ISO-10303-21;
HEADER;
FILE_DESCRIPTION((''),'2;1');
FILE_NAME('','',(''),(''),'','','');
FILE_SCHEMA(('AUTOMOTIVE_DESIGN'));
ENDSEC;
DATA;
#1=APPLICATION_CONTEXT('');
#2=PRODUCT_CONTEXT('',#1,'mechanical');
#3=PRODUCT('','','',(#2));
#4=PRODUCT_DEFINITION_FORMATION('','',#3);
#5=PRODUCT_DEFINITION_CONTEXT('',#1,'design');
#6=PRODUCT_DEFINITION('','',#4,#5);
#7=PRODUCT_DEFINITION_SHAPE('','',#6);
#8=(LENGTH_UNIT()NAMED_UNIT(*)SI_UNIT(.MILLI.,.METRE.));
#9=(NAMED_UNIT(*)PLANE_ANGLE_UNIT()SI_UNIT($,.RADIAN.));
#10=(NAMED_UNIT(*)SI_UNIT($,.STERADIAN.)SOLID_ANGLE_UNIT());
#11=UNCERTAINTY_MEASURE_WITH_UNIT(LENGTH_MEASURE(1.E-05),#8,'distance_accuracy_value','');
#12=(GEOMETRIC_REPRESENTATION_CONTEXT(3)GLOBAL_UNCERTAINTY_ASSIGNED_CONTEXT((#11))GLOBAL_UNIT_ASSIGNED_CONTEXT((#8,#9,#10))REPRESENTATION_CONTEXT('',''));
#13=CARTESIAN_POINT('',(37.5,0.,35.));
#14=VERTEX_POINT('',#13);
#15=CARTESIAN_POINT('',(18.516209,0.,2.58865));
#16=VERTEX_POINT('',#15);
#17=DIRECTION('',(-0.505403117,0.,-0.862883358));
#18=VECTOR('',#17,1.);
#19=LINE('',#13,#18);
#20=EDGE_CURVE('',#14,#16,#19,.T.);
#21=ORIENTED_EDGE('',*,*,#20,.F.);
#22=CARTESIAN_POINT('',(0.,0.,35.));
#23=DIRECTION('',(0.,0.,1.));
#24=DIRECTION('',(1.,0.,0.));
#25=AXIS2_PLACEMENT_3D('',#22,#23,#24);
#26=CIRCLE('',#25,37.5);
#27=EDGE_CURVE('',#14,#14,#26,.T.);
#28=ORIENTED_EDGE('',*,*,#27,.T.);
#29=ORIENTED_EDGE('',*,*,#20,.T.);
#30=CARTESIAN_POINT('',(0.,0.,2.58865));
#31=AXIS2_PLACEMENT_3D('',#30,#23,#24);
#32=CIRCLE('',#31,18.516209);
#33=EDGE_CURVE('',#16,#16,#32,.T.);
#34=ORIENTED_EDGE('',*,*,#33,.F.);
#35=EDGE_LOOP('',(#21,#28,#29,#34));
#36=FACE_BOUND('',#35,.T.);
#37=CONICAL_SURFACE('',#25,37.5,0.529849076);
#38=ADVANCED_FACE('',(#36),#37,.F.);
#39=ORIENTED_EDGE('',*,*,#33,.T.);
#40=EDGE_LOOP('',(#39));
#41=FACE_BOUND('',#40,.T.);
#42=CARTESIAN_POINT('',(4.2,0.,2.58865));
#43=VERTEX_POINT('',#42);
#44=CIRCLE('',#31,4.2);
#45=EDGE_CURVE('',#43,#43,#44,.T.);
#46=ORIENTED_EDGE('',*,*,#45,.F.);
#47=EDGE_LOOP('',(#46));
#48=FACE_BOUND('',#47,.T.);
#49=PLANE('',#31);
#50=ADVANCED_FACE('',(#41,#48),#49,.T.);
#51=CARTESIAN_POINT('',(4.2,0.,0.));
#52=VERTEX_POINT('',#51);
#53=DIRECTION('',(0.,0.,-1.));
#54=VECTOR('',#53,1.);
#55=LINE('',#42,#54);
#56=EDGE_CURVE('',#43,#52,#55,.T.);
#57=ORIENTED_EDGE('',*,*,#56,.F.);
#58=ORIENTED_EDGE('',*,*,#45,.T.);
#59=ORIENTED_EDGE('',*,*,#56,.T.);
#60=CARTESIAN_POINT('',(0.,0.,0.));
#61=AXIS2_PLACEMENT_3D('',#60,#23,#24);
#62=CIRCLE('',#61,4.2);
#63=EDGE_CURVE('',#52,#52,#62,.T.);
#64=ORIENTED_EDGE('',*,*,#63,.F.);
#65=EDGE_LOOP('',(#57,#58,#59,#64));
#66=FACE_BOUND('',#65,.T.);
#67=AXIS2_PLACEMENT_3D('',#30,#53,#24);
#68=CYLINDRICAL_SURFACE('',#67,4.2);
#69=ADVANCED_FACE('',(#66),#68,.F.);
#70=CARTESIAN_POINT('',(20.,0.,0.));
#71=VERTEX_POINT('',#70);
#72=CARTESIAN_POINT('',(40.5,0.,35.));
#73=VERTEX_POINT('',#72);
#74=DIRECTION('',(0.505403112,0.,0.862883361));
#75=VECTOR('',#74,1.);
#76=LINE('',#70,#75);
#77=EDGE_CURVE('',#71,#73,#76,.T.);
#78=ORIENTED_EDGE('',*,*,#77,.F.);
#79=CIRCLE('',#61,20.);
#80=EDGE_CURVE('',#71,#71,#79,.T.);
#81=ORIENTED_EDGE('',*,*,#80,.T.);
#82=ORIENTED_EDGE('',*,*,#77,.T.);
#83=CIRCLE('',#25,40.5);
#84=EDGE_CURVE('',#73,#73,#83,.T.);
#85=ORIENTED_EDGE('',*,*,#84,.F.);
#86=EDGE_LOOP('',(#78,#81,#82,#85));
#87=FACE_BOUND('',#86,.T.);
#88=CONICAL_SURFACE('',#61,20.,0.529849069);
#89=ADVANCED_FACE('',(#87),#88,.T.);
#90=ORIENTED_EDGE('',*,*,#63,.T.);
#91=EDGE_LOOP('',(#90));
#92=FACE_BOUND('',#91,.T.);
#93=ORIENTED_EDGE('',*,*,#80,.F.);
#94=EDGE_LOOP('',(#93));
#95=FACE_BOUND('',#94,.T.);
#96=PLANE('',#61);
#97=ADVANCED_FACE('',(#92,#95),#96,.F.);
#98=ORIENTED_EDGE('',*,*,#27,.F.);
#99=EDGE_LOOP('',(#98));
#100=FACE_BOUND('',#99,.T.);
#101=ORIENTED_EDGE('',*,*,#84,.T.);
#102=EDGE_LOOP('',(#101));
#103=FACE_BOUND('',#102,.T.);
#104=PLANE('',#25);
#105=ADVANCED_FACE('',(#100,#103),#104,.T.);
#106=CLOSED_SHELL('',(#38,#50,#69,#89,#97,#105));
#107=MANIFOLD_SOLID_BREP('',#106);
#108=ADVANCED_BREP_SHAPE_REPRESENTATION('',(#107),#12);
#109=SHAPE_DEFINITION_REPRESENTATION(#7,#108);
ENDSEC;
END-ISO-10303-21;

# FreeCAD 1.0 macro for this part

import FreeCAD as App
import Part
import Sketcher


def add_polygon(sketch, points):
    """Adds a closed chain of lines whose ends are joined by coincident constraints."""
    first, n = sketch.GeometryCount, len(points)
    for a, b in zip(points, points[1:] + points[:1]):
        sketch.addGeometry(Part.LineSegment(App.Vector(*a, 0), App.Vector(*b, 0)), False)
    for i in range(n):
        sketch.addConstraint(Sketcher.Constraint("Coincident", first + i, 2, first + (i + 1) % n, 1))

doc = App.newDocument("Part")
params = doc.addObject("Spreadsheet::Sheet", "Params")
for row, (alias, value) in enumerate([
    ("sketch1_width", "3 mm"),
    ("sketch1_width2", "15.8 mm"),
    ("revolution_angle", "360 deg"),
], start=1):
    params.set(f"A{row}", alias)
    params.set(f"B{row}", "=" + value)
    params.setAlias(f"B{row}", alias)

body = doc.addObject("PartDesign::Body", "Body")

sketch1 = body.newObject("Sketcher::SketchObject", "Sketch")
sketch1.AttachmentSupport = (doc.getObject("XZ_Plane"), [""])
sketch1.MapMode = "FlatFace"
add_polygon(sketch1, [(4.2, 2.6), (4.2, 0), (20, 0), (40.5, 35), (37.5, 35), (18.5, 2.6)])
sketch1.addConstraint([
    Sketcher.Constraint("Vertical", 0),
    Sketcher.Constraint("Horizontal", 1),
    Sketcher.Constraint("Horizontal", 3),
    Sketcher.Constraint("Horizontal", 5),
    Sketcher.Constraint("PointOnObject", 0, 2, -1),
    Sketcher.Constraint("Parallel", 2, 4),
    Sketcher.Constraint("DistanceX", 3, 2, 3, 1, 3.0),
    Sketcher.Constraint("DistanceX", 1, 1, 1, 2, 15.8),
    Sketcher.Constraint("DistanceX", -1, 1, 1, 2, 20.0),
    Sketcher.Constraint("DistanceY", -1, 1, 2, 2, 35.0),
    Sketcher.Constraint("DistanceX", -1, 1, 2, 2, 40.5),
    Sketcher.Constraint("DistanceX", 5, 2, 5, 1, 14.316209),
])
sketch1.setExpression("Constraints[12]", "Params.sketch1_width")
sketch1.setExpression("Constraints[13]", "Params.sketch1_width2")
revolution = body.newObject("PartDesign::Revolution", "Revolution")
revolution.Profile = sketch1
revolution.ReferenceAxis = (sketch1, ["V_Axis"])
revolution.setExpression("Angle", "Params.revolution_angle")

doc.recompute()
